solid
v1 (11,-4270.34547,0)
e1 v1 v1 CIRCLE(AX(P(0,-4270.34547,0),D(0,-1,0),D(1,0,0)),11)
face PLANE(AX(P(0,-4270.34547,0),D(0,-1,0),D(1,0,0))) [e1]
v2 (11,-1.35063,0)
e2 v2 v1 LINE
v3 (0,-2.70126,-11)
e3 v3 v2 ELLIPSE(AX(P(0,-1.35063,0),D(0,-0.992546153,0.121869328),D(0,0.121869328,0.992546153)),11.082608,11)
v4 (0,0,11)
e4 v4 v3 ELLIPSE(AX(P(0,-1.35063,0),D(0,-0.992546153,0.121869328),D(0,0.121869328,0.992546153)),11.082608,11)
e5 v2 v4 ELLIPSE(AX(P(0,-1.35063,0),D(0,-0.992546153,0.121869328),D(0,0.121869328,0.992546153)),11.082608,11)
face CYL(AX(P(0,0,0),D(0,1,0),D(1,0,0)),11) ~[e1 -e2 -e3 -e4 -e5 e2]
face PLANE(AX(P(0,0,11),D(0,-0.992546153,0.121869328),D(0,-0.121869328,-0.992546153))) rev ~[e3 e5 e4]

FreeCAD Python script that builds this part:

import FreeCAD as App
import Part
import Sketcher
Q = App.Units.Quantity

doc = App.newDocument("Part")
body = doc.addObject("PartDesign::Body", "Body")

# Sketch on XZ plane
sketch1 = body.newObject("Sketcher::SketchObject", "Sketch")
sketch1.AttachmentSupport = (doc.getObject("XZ_Plane"), [""])
sketch1.MapMode = "FlatFace"
sketch1.addGeometry(Part.Circle(App.Vector(0, 0, 0), App.Vector(0, 0, 1), 11), False)
sketch1.addConstraint([
    Sketcher.Constraint("Coincident", 0, 3, -1, 1),
    Sketcher.Constraint("Diameter", 0, 22.0),
])
pad1 = body.newObject("PartDesign::Pad", "Pad")
pad1.Profile = sketch1
pad1.Length = 4270.34547

# Sketch on YZ plane
sketch2 = body.newObject("Sketcher::SketchObject", "Sketch001")
sketch2.AttachmentSupport = (doc.getObject("YZ_Plane"), [""])
sketch2.MapMode = "FlatFace"
sketch2.addGeometry([
    Part.LineSegment(App.Vector(-2.70126, -11, 0), App.Vector(0, -11, 0)),
    Part.LineSegment(App.Vector(0, -11, 0), App.Vector(0, 11, 0)),
    Part.LineSegment(App.Vector(0, 11, 0), App.Vector(-2.70126, -11, 0)),
], False)
sketch2.addConstraint([
    Sketcher.Constraint("Coincident", 0, 2, 1, 1),
    Sketcher.Constraint("Coincident", 1, 2, 2, 1),
    Sketcher.Constraint("Coincident", 2, 2, 0, 1),
    Sketcher.Constraint("Horizontal", 0),
    Sketcher.Constraint("Vertical", 1),
    Sketcher.Constraint("Symmetric", 0, 2, 1, 2, -1, 1),
    Sketcher.Constraint("DistanceY", 1, 1, 1, 2, 22.0),
    Sketcher.Constraint("Angle", 2, Q("-96.999999 deg")),
])
pocket1 = body.newObject("PartDesign::Pocket", "Pocket")
pocket1.Profile = sketch2
pocket1.Length = 25
pocket1.Midplane = True

doc.recompute()
